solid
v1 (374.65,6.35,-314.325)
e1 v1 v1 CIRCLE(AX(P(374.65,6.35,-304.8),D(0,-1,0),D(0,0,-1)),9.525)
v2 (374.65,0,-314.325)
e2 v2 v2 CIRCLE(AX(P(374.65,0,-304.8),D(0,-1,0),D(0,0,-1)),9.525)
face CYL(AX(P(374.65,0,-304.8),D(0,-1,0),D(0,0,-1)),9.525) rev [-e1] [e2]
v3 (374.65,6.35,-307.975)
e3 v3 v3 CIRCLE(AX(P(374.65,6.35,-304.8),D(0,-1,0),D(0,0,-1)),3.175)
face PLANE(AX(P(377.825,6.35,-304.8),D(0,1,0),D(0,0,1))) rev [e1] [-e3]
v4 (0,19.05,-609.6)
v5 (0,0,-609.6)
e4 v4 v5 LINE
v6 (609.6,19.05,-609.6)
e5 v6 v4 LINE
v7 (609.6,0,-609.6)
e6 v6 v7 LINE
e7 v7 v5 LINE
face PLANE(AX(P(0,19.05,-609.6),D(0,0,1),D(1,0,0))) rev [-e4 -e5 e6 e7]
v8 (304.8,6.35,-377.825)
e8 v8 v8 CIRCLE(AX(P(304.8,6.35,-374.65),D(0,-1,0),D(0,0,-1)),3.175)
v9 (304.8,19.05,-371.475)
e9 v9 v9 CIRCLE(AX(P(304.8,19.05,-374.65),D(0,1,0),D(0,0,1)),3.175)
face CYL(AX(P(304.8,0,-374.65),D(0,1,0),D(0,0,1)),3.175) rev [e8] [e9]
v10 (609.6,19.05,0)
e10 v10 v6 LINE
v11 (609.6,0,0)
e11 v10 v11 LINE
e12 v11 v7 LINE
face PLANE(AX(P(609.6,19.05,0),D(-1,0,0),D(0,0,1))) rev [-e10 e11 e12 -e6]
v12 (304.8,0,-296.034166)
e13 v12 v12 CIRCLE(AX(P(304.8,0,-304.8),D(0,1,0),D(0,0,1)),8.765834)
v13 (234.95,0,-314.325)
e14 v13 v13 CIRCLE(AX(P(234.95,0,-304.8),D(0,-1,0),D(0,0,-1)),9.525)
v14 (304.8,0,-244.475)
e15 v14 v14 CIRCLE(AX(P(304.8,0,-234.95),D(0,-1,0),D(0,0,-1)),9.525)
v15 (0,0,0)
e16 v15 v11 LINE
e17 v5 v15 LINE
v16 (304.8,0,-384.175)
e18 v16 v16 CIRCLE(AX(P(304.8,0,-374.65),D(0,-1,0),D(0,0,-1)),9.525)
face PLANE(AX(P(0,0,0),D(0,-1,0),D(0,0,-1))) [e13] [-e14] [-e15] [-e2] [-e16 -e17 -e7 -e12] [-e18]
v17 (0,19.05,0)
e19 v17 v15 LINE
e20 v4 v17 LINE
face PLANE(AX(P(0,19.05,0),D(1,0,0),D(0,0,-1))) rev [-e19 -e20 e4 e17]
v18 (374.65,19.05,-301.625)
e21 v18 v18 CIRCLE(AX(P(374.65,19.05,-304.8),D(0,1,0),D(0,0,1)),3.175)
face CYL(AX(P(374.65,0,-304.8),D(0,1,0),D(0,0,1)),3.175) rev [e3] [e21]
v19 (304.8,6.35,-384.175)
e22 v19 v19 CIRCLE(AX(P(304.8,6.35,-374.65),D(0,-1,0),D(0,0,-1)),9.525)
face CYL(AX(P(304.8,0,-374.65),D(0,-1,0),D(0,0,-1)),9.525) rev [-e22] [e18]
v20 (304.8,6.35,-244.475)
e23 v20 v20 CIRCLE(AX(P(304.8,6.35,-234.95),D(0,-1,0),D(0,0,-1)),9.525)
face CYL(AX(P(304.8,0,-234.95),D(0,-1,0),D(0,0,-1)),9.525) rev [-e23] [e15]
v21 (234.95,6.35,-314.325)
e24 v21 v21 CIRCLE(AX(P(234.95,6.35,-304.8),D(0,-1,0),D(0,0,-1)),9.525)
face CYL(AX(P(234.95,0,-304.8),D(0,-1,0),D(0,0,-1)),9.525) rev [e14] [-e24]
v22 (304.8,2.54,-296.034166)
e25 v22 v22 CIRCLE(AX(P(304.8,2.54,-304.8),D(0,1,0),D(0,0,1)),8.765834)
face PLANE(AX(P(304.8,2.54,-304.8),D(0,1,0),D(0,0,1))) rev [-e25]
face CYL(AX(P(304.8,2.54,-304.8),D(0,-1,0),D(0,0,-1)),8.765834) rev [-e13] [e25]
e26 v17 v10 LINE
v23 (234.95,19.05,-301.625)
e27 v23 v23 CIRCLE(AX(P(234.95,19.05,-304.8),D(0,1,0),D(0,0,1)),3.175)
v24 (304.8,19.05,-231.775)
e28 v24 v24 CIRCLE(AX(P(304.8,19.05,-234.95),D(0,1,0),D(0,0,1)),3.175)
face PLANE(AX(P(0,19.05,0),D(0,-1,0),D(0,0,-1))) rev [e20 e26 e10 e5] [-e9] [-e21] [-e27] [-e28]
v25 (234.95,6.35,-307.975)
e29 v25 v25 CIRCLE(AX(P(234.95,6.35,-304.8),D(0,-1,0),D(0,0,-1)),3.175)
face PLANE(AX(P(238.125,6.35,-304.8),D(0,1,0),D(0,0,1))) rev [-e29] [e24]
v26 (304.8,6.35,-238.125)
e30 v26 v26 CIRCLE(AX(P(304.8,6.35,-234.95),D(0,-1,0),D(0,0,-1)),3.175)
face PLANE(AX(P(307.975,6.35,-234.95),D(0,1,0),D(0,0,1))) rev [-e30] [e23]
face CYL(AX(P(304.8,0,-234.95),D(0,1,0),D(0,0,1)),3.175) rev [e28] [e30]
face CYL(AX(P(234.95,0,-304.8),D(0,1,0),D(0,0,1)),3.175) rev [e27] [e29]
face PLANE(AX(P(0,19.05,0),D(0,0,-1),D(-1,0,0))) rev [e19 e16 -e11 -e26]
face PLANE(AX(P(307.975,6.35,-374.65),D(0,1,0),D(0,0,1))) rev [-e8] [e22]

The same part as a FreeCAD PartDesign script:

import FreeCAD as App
import Part
import Sketcher
Q = App.Units.Quantity


def add_polygon(sketch, points):
    """Adds a closed chain of lines whose ends are joined by coincident constraints."""
    first, n = sketch.GeometryCount, len(points)
    for a, b in zip(points, points[1:] + points[:1]):
        sketch.addGeometry(Part.LineSegment(App.Vector(*a, 0), App.Vector(*b, 0)), False)
    for i in range(n):
        sketch.addConstraint(Sketcher.Constraint("Coincident", first + i, 2, first + (i + 1) % n, 1))

doc = App.newDocument("Part")
body = doc.addObject("PartDesign::Body", "Body")

# Sketch on XZ plane
sketch1 = body.newObject("Sketcher::SketchObject", "Sketch")
sketch1.AttachmentSupport = (doc.getObject("XZ_Plane"), [""])
sketch1.MapMode = "FlatFace"
add_polygon(sketch1, [(0, -609.6), (0, 0), (609.6, 0), (609.6, -609.6)])  # lines 0-3
sketch1.addConstraint([
    Sketcher.Constraint("Vertical", 0),
    Sketcher.Constraint("Horizontal", 1),
    Sketcher.Constraint("Vertical", 2),
    Sketcher.Constraint("Horizontal", 3),
    Sketcher.Constraint("Coincident", 0, 2, -1, 1),
    Sketcher.Constraint("Equal", 3, 0),
    Sketcher.Constraint("DistanceX", 1, 1, 1, 2, Q("24 in")),
])
pad1 = body.newObject("PartDesign::Pad", "Pad")
pad1.Profile = sketch1
pad1.Length = Q("0.75 in")
pad1.Reversed = True

# Sketch on XZ plane
sketch2 = body.newObject("Sketcher::SketchObject", "Sketch001")
sketch2.AttachmentSupport = (doc.getObject("XZ_Plane"), [""])
sketch2.MapMode = "FlatFace"
sketch2.AttachmentOffset = App.Placement(App.Vector(0, 0, -0.75 * 25.4), App.Rotation())
sketch2.addGeometry([
    Part.Circle(App.Vector(304.8, -374.65, 0), App.Vector(0, 0, 1), 3.175),
    Part.Circle(App.Vector(234.95, -304.8, 0), App.Vector(0, 0, 1), 3.175),
    Part.Circle(App.Vector(374.65, -304.8, 0), App.Vector(0, 0, 1), 3.175),
    Part.Circle(App.Vector(304.8, -234.95, 0), App.Vector(0, 0, 1), 3.175),
], False)
sketch2.addConstraint([
    Sketcher.Constraint("Equal", 0, 1),
    Sketcher.Constraint("Equal", 1, 2),
    Sketcher.Constraint("Equal", 2, 3),
    Sketcher.Constraint("Horizontal", 1, 3, 2, 3),
    Sketcher.Constraint("Vertical", 0, 3, 3, 3),
    Sketcher.Constraint("Diameter", 0, Q("0.25 in")),
    Sketcher.Constraint("DistanceX", -1, 1, 0, 3, Q("12 in")),
    Sketcher.Constraint("DistanceY", 1, 3, -1, 1, Q("12 in")),
    Sketcher.Constraint("DistanceX", 1, 3, 2, 3, Q("5.5 in")),
    Sketcher.Constraint("DistanceY", 0, 3, 3, 3, Q("5.5 in")),
    Sketcher.Constraint("DistanceY", 0, 3, -1, 1, Q("14.75 in")),
    Sketcher.Constraint("DistanceX", -1, 1, 1, 3, Q("9.25 in")),
])
pocket1 = body.newObject("PartDesign::Pocket", "Pocket")
pocket1.Profile = sketch2
pocket1.Type = "ThroughAll"
pocket1.Reversed = True

# Sketch on XZ plane
sketch3 = body.newObject("Sketcher::SketchObject", "Sketch002")
sketch3.AttachmentSupport = (doc.getObject("XZ_Plane"), [""])
sketch3.MapMode = "FlatFace"
sketch3.addGeometry(Part.Circle(App.Vector(304.8, -304.8, 0), App.Vector(0, 0, 1), 8.765834), False)
sketch3.addConstraint([
    Sketcher.Constraint("DistanceX", -1, 1, 0, 3, Q("12 in")),
    Sketcher.Constraint("DistanceY", 0, 3, -1, 1, Q("12 in")),
    Sketcher.Constraint("Diameter", 0, 17.531667),
])
pocket2 = body.newObject("PartDesign::Pocket", "Pocket001")
pocket2.Profile = sketch3
pocket2.Length = Q("0.1 in")

# Sketch on XZ plane
sketch4 = body.newObject("Sketcher::SketchObject", "Sketch003")
sketch4.AttachmentSupport = (doc.getObject("XZ_Plane"), [""])
sketch4.MapMode = "FlatFace"
sketch4.addGeometry([
    Part.Circle(App.Vector(234.95, -304.8, 0), App.Vector(0, 0, 1), 3.175),
    Part.Circle(App.Vector(304.8, -234.95, 0), App.Vector(0, 0, 1), 3.175),
    Part.Circle(App.Vector(374.65, -304.8, 0), App.Vector(0, 0, 1), 3.175),
    Part.Circle(App.Vector(304.8, -374.65, 0), App.Vector(0, 0, 1), 3.175),
], False)
sketch4.addConstraint([
    Sketcher.Constraint("Equal", 0, 1),
    Sketcher.Constraint("Equal", 1, 2),
    Sketcher.Constraint("Equal", 2, 3),
    Sketcher.Constraint("Horizontal", 0, 3, 2, 3),
    Sketcher.Constraint("Vertical", 1, 3, 3, 3),
    Sketcher.Constraint("Diameter", 0, Q("0.25 in")),
    Sketcher.Constraint("DistanceY", 0, 3, -1, 1, Q("12 in")),
    Sketcher.Constraint("DistanceX", -1, 1, 1, 3, Q("12 in")),
    Sketcher.Constraint("DistanceX", 0, 3, 2, 3, Q("5.5 in")),
    Sketcher.Constraint("DistanceY", 3, 3, 1, 3, Q("5.5 in")),
    Sketcher.Constraint("DistanceX", -1, 1, 0, 3, Q("9.25 in")),
    Sketcher.Constraint("DistanceY", 1, 3, -1, 1, Q("9.25 in")),
])
doc.recompute()
hole = body.newObject("PartDesign::Hole", "Hole")
hole.Profile = sketch4
hole.ThreadType = "None"
hole.Diameter = Q("0.25 in")
hole.DepthType = "Dimension"
hole.Depth = Q("1 in")
hole.DrillPoint = "Flat"
hole.HoleCutType = "Counterbore"
hole.HoleCutDiameter = Q("0.75 in")
hole.HoleCutDepth = Q("0.25 in")

doc.recompute()
